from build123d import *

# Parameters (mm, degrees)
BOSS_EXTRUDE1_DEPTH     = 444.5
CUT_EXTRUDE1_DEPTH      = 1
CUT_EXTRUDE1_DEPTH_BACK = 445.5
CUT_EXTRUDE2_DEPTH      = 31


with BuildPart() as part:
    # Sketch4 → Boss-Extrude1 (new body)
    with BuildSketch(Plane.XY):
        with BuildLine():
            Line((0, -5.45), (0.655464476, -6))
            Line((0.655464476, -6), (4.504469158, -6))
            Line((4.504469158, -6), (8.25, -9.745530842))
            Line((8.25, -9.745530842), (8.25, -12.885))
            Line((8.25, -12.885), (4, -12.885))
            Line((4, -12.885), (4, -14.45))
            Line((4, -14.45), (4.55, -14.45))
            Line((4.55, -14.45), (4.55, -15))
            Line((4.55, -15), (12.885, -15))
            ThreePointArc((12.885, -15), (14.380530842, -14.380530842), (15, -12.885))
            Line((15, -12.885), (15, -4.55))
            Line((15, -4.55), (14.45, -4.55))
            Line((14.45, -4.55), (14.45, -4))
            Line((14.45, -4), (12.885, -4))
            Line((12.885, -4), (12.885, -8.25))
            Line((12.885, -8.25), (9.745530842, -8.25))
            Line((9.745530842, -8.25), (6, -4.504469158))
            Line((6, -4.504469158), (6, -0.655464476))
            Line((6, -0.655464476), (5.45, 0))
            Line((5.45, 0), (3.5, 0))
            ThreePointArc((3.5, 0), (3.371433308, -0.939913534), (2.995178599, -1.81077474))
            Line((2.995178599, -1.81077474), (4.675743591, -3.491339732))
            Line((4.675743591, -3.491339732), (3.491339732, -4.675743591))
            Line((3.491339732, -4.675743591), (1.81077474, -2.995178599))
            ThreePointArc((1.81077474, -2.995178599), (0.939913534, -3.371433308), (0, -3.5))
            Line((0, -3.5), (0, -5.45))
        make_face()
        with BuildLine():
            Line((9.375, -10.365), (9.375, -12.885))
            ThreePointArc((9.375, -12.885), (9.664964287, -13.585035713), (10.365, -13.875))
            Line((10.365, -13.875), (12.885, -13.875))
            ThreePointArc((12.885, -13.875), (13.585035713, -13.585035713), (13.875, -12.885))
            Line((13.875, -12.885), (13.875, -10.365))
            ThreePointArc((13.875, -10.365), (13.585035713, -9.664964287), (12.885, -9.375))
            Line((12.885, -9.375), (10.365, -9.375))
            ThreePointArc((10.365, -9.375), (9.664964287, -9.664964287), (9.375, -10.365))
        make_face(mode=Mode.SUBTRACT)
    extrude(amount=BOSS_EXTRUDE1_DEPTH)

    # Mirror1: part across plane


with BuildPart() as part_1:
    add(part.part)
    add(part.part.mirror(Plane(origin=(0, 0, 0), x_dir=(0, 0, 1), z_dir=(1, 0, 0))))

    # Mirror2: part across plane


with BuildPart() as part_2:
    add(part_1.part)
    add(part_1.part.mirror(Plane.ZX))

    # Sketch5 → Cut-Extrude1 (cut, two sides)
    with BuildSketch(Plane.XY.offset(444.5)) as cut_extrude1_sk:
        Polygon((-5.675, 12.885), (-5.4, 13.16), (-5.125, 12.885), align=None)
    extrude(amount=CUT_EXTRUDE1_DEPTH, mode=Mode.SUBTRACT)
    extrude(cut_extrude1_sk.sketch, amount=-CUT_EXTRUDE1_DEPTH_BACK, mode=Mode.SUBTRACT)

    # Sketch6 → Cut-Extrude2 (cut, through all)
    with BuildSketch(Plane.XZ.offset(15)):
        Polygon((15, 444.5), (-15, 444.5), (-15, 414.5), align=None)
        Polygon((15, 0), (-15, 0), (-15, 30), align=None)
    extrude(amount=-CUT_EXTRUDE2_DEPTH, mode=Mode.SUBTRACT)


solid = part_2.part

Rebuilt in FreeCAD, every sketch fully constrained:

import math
import FreeCAD as App
import Part
import Sketcher
Q = App.Units.Quantity

doc = App.newDocument("Part")
body = doc.addObject("PartDesign::Body", "Body")

sketch1 = doc.addObject("Sketcher::SketchObject", "Sketch")
body.addObject(sketch1)
sketch1.AttachmentSupport = (doc.XY_Plane, [""])
sketch1.MapMode = "FlatFace"
sketch1.addGeometry([
    Part.LineSegment(App.Vector(0, -5.5, 0), App.Vector(0.7, -6, 0)),
    Part.LineSegment(App.Vector(0.7, -6, 0), App.Vector(4.5, -6, 0)),
    Part.LineSegment(App.Vector(4.5, -6, 0), App.Vector(8.2, -9.7, 0)),
    Part.LineSegment(App.Vector(8.2, -9.7, 0), App.Vector(8.2, -12.9, 0)),
    Part.LineSegment(App.Vector(8.2, -12.9, 0), App.Vector(4, -12.9, 0)),
    Part.LineSegment(App.Vector(4, -12.9, 0), App.Vector(4, -14.4, 0)),
    Part.LineSegment(App.Vector(4, -14.4, 0), App.Vector(4.5, -14.4, 0)),
    Part.LineSegment(App.Vector(4.5, -14.4, 0), App.Vector(4.5, -15, 0)),
    Part.LineSegment(App.Vector(4.5, -15, 0), App.Vector(12.9, -15, 0)),
    Part.ArcOfCircle(Part.Circle(App.Vector(12.9, -12.9, 0), App.Vector(0, 0, 1), 2.1), math.radians(-90), math.radians(0)),
    Part.LineSegment(App.Vector(15, -12.9, 0), App.Vector(15, -4.5, 0)),
    Part.LineSegment(App.Vector(15, -4.5, 0), App.Vector(14.4, -4.5, 0)),
    Part.LineSegment(App.Vector(14.4, -4.5, 0), App.Vector(14.4, -4, 0)),
    Part.LineSegment(App.Vector(14.4, -4, 0), App.Vector(12.9, -4, 0)),
    Part.LineSegment(App.Vector(12.9, -4, 0), App.Vector(12.9, -8.2, 0)),
    Part.LineSegment(App.Vector(12.9, -8.2, 0), App.Vector(9.7, -8.2, 0)),
    Part.LineSegment(App.Vector(9.7, -8.2, 0), App.Vector(6, -4.5, 0)),
    Part.LineSegment(App.Vector(6, -4.5, 0), App.Vector(6, -0.7, 0)),
    Part.LineSegment(App.Vector(6, -0.7, 0), App.Vector(5.5, 0, 0)),
    Part.LineSegment(App.Vector(5.5, 0, 0), App.Vector(3.5, 0, 0)),
    Part.ArcOfCircle(Part.Circle(App.Vector(0, 0, 0), App.Vector(0, 0, 1), 3.5), math.radians(-31), math.radians(0)),
    Part.LineSegment(App.Vector(3, -1.8, 0), App.Vector(4.7, -3.5, 0)),
    Part.LineSegment(App.Vector(4.7, -3.5, 0), App.Vector(3.5, -4.7, 0)),
    Part.LineSegment(App.Vector(3.5, -4.7, 0), App.Vector(1.8, -3, 0)),
    Part.ArcOfCircle(Part.Circle(App.Vector(0, 0, 0), App.Vector(0, 0, 1), 3.5), math.radians(-90), math.radians(-59)),
    Part.LineSegment(App.Vector(0, -3.5, 0), App.Vector(0, -5.5, 0)),
    Part.LineSegment(App.Vector(9.4, -12.9, 0), App.Vector(9.4, -10.4, 0)),
    Part.ArcOfCircle(Part.Circle(App.Vector(10.4, -10.4, 0), App.Vector(0, 0, 1), 1), math.radians(90), math.radians(180)),
    Part.LineSegment(App.Vector(10.4, -9.4, 0), App.Vector(12.9, -9.4, 0)),
    Part.ArcOfCircle(Part.Circle(App.Vector(12.9, -10.4, 0), App.Vector(0, 0, 1), 1), math.radians(0), math.radians(90)),
    Part.LineSegment(App.Vector(13.9, -10.4, 0), App.Vector(13.9, -12.9, 0)),
    Part.ArcOfCircle(Part.Circle(App.Vector(12.9, -12.9, 0), App.Vector(0, 0, 1), 1), math.radians(-90), math.radians(0)),
    Part.LineSegment(App.Vector(12.9, -13.9, 0), App.Vector(10.4, -13.9, 0)),
    Part.ArcOfCircle(Part.Circle(App.Vector(10.4, -12.9, 0), App.Vector(0, 0, 1), 1), math.radians(-180), math.radians(-90)),
], False)
sketch1.addConstraint([
    Sketcher.Constraint("Coincident", 0, 2, 1, 1),
    Sketcher.Constraint("Coincident", 1, 2, 2, 1),
    Sketcher.Constraint("Coincident", 2, 2, 3, 1),
    Sketcher.Constraint("Coincident", 3, 2, 4, 1),
    Sketcher.Constraint("Coincident", 4, 2, 5, 1),
    Sketcher.Constraint("Coincident", 5, 2, 6, 1),
    Sketcher.Constraint("Coincident", 6, 2, 7, 1),
    Sketcher.Constraint("Coincident", 7, 2, 8, 1),
    Sketcher.Constraint("Tangent", 8, 2, 9, 1),
    Sketcher.Constraint("Tangent", 9, 2, 10, 1),
    Sketcher.Constraint("Coincident", 10, 2, 11, 1),
    Sketcher.Constraint("Coincident", 11, 2, 12, 1),
    Sketcher.Constraint("Coincident", 12, 2, 13, 1),
    Sketcher.Constraint("Coincident", 13, 2, 14, 1),
    Sketcher.Constraint("Coincident", 14, 2, 15, 1),
    Sketcher.Constraint("Coincident", 15, 2, 16, 1),
    Sketcher.Constraint("Coincident", 16, 2, 17, 1),
    Sketcher.Constraint("Coincident", 17, 2, 18, 1),
    Sketcher.Constraint("Coincident", 18, 2, 19, 1),
    Sketcher.Constraint("Coincident", 19, 2, 20, 2),
    Sketcher.Constraint("Coincident", 20, 1, 21, 1),
    Sketcher.Constraint("Coincident", 21, 2, 22, 1),
    Sketcher.Constraint("Coincident", 22, 2, 23, 1),
    Sketcher.Constraint("Coincident", 23, 2, 24, 2),
    Sketcher.Constraint("Coincident", 24, 1, 25, 1),
    Sketcher.Constraint("Coincident", 25, 2, 0, 1),
    Sketcher.Constraint("Tangent", 26, 2, 27, 2),
    Sketcher.Constraint("Tangent", 27, 1, 28, 1),
    Sketcher.Constraint("Tangent", 28, 2, 29, 2),
    Sketcher.Constraint("Tangent", 29, 1, 30, 1),
    Sketcher.Constraint("Tangent", 30, 2, 31, 2),
    Sketcher.Constraint("Tangent", 31, 1, 32, 1),
    Sketcher.Constraint("Tangent", 32, 2, 33, 2),
    Sketcher.Constraint("Tangent", 33, 1, 26, 1),
    Sketcher.Constraint("Horizontal", 1),
    Sketcher.Constraint("Vertical", 3),
    Sketcher.Constraint("Horizontal", 4),
    Sketcher.Constraint("Vertical", 5),
    Sketcher.Constraint("Horizontal", 6),
    Sketcher.Constraint("Vertical", 7),
    Sketcher.Constraint("Horizontal", 8),
    Sketcher.Constraint("Vertical", 10),
    Sketcher.Constraint("Horizontal", 11),
    Sketcher.Constraint("Vertical", 12),
    Sketcher.Constraint("Horizontal", 13),
    Sketcher.Constraint("Vertical", 14),
    Sketcher.Constraint("Horizontal", 15),
    Sketcher.Constraint("Vertical", 17),
    Sketcher.Constraint("Horizontal", 19),
    Sketcher.Constraint("Vertical", 25),
    Sketcher.Constraint("Vertical", 26),
    Sketcher.Constraint("Horizontal", 28),
    Sketcher.Constraint("Vertical", 30),
    Sketcher.Constraint("Horizontal", 32),
    Sketcher.Constraint("Coincident", 20, 3, -1, 1),
    Sketcher.Constraint("Coincident", 24, 3, -1, 1),
    Sketcher.Constraint("Coincident", 31, 3, 9, 3),
    Sketcher.Constraint("Equal", 20, 24),
    Sketcher.Constraint("Equal", 27, 29),
    Sketcher.Constraint("Equal", 29, 31),
    Sketcher.Constraint("Equal", 31, 33),
    Sketcher.Constraint("PointOnObject", 18, 2, -1),
    Sketcher.Constraint("PointOnObject", 24, 1, -2),
    Sketcher.Constraint("Parallel", 2, 16),
    Sketcher.Constraint("Parallel", 16, 21),
    Sketcher.Constraint("Perpendicular", 21, 22),
    Sketcher.Constraint("Perpendicular", 22, 23),
    Sketcher.Constraint("Horizontal", 33, 3, 3, 2),
    Sketcher.Constraint("Vertical", 8, 2, 13, 2),
    Sketcher.Constraint("Equal", 6, 11),
    Sketcher.Constraint("Equal", 15, 3),
    Sketcher.Constraint("Equal", 13, 5),
    Sketcher.Constraint("Equal", 8, 10),
    Sketcher.Constraint("Equal", 7, 12),
    Sketcher.Constraint("Equal", 4, 14),
    Sketcher.Constraint("Equal", 1, 17),
    Sketcher.Constraint("Equal", 19, 25),
    Sketcher.Constraint("Equal", 32, 26),
    Sketcher.Constraint("Equal", 2, 16),
    Sketcher.Constraint("Equal", 0, 18),
    Sketcher.Constraint("Equal", 21, 23),
    Sketcher.Constraint("Radius", 20, 3.5),
    Sketcher.Constraint("Angle", 0, Q("-40 deg")),
    Sketcher.Constraint("Angle", 2, Q("-45 deg")),
    Sketcher.Constraint("Radius", 27, 0.99),
    Sketcher.Constraint("DistanceY", 0, 2, -1, 1, 6.0),
    Sketcher.Constraint("DistanceX", -1, 1, 4, 2, 4.0),
    Sketcher.Constraint("DistanceY", 7, 2, -1, 1, 15.0),
    Sketcher.Constraint("Radius", 9, 2.115),
    Sketcher.Constraint("DistanceX", 4, 2, 4, 1, 4.25),
    Sketcher.Constraint("DistanceX", 6, 1, 6, 2, 0.55),
    Sketcher.Constraint("DistanceX", 19, 2, 19, 1, 1.95),
    Sketcher.Constraint("DistanceX", 28, 1, 28, 2, 2.52),
    Sketcher.Constraint("Distance", 22, 1.675),
    Sketcher.Constraint("DistanceX", 15, 2, 15, 1, 3.139469),
    Sketcher.Constraint("DistanceY", 21, 2, -1, 1, 3.49134),
])
pad1 = doc.addObject("PartDesign::Pad", "Pad")
body.addObject(pad1)
pad1.Profile = sketch1
pad1.Length = 444.5
body2 = doc.addObject("PartDesign::Body", "Body001")
doc.recompute()

body2.BaseFeature = body
doc.recompute()

mirroring = doc.addObject("Part::Mirroring", "Mirroring")
mirroring.Source = body
mirroring.Base = App.Vector(0, 0, 0)
mirroring.Normal = App.Vector(1, 0, 0)
body3 = doc.addObject("PartDesign::Body", "Body002")
body3.BaseFeature = mirroring
boolean = doc.addObject("PartDesign::Boolean", "Boolean")
body2.addObject(boolean)
boolean.Type = "Fuse"
boolean.addObjects([body3])
doc.recompute()
body4 = doc.addObject("PartDesign::Body", "Body003")
doc.recompute()

body4.BaseFeature = body2
doc.recompute()

mirroring2 = doc.addObject("Part::Mirroring", "Mirroring001")
mirroring2.Source = body2
mirroring2.Base = App.Vector(0, 0, 0)
mirroring2.Normal = App.Vector(0, 1, 0)
body5 = doc.addObject("PartDesign::Body", "Body004")
body5.BaseFeature = mirroring2
boolean2 = doc.addObject("PartDesign::Boolean", "Boolean001")
body4.addObject(boolean2)
boolean2.Type = "Fuse"
boolean2.addObjects([body5])
doc.recompute()

sketch2 = doc.addObject("Sketcher::SketchObject", "Sketch001")
body4.addObject(sketch2)
sketch2.AttachmentSupport = (doc.getObject("XY_Plane003"), [""])
sketch2.MapMode = "FlatFace"
sketch2.AttachmentOffset = App.Placement(App.Vector(0, 0, 444.5), App.Rotation())
sketch2.addGeometry([
    Part.LineSegment(App.Vector(-5.4, 13.16, 0), App.Vector(-5.67, 12.88, 0)),
    Part.LineSegment(App.Vector(-5.67, 12.88, 0), App.Vector(-5.12, 12.88, 0)),
    Part.LineSegment(App.Vector(-5.12, 12.88, 0), App.Vector(-5.4, 13.16, 0)),
], False)
sketch2.addConstraint([
    Sketcher.Constraint("Coincident", 0, 2, 1, 1),
    Sketcher.Constraint("Coincident", 1, 2, 2, 1),
    Sketcher.Constraint("Coincident", 2, 2, 0, 1),
    Sketcher.Constraint("Horizontal", 1),
    Sketcher.Constraint("Perpendicular", 0, 2),
    Sketcher.Constraint("Equal", 0, 2),
    Sketcher.Constraint("DistanceX", 1, 1, 1, 2, 0.55),
    Sketcher.Constraint("DistanceX", 2, 2, -1, 1, 5.4),
    Sketcher.Constraint("DistanceY", -1, 1, 2, 2, 13.16),
])
pocket1 = doc.addObject("PartDesign::Pocket", "Pocket")
body4.addObject(pocket1)
pocket1.Profile = sketch2
pocket1.Type = "ThroughAll"
pocket1.Midplane = True

sketch3 = doc.addObject("Sketcher::SketchObject", "Sketch002")
body4.addObject(sketch3)
sketch3.AttachmentSupport = (doc.getObject("XZ_Plane003"), [""])
sketch3.MapMode = "FlatFace"
sketch3.AttachmentOffset = App.Placement(App.Vector(0, 0, 15), App.Rotation())
sketch3.addGeometry([
    Part.LineSegment(App.Vector(15, 444, 0), App.Vector(-15, 444, 0)),
    Part.LineSegment(App.Vector(-15, 444, 0), App.Vector(-15, 414, 0)),
    Part.LineSegment(App.Vector(-15, 414, 0), App.Vector(15, 444, 0)),
    Part.LineSegment(App.Vector(-15, 0, 0), App.Vector(15, 0, 0)),
    Part.LineSegment(App.Vector(15, 0, 0), App.Vector(-15, 30, 0)),
    Part.LineSegment(App.Vector(-15, 30, 0), App.Vector(-15, 0, 0)),
], False)
sketch3.addConstraint([
    Sketcher.Constraint("Coincident", 0, 2, 1, 1),
    Sketcher.Constraint("Coincident", 1, 2, 2, 1),
    Sketcher.Constraint("Coincident", 2, 2, 0, 1),
    Sketcher.Constraint("Coincident", 3, 2, 4, 1),
    Sketcher.Constraint("Coincident", 4, 2, 5, 1),
    Sketcher.Constraint("Coincident", 5, 2, 3, 1),
    Sketcher.Constraint("Horizontal", 0),
    Sketcher.Constraint("Vertical", 1),
    Sketcher.Constraint("Horizontal", 3),
    Sketcher.Constraint("Vertical", 5),
    Sketcher.Constraint("Symmetric", 3, 2, 5, 2, -1, 1),
    Sketcher.Constraint("Perpendicular", 2, 4),
    Sketcher.Constraint("Vertical", 2, 2, 3, 2),
    Sketcher.Constraint("Vertical", 1, 2, 4, 2),
    Sketcher.Constraint("Equal", 3, 1),
    Sketcher.Constraint("DistanceX", 0, 2, 0, 1, 30.0),
    Sketcher.Constraint("DistanceY", -1, 1, 0, 2, 444.5),
])
pocket2 = doc.addObject("PartDesign::Pocket", "Pocket001")
body4.addObject(pocket2)
pocket2.Profile = sketch3
pocket2.Type = "ThroughAll"
mirroring.Visibility = False
mirroring2.Visibility = False

doc.recompute()
